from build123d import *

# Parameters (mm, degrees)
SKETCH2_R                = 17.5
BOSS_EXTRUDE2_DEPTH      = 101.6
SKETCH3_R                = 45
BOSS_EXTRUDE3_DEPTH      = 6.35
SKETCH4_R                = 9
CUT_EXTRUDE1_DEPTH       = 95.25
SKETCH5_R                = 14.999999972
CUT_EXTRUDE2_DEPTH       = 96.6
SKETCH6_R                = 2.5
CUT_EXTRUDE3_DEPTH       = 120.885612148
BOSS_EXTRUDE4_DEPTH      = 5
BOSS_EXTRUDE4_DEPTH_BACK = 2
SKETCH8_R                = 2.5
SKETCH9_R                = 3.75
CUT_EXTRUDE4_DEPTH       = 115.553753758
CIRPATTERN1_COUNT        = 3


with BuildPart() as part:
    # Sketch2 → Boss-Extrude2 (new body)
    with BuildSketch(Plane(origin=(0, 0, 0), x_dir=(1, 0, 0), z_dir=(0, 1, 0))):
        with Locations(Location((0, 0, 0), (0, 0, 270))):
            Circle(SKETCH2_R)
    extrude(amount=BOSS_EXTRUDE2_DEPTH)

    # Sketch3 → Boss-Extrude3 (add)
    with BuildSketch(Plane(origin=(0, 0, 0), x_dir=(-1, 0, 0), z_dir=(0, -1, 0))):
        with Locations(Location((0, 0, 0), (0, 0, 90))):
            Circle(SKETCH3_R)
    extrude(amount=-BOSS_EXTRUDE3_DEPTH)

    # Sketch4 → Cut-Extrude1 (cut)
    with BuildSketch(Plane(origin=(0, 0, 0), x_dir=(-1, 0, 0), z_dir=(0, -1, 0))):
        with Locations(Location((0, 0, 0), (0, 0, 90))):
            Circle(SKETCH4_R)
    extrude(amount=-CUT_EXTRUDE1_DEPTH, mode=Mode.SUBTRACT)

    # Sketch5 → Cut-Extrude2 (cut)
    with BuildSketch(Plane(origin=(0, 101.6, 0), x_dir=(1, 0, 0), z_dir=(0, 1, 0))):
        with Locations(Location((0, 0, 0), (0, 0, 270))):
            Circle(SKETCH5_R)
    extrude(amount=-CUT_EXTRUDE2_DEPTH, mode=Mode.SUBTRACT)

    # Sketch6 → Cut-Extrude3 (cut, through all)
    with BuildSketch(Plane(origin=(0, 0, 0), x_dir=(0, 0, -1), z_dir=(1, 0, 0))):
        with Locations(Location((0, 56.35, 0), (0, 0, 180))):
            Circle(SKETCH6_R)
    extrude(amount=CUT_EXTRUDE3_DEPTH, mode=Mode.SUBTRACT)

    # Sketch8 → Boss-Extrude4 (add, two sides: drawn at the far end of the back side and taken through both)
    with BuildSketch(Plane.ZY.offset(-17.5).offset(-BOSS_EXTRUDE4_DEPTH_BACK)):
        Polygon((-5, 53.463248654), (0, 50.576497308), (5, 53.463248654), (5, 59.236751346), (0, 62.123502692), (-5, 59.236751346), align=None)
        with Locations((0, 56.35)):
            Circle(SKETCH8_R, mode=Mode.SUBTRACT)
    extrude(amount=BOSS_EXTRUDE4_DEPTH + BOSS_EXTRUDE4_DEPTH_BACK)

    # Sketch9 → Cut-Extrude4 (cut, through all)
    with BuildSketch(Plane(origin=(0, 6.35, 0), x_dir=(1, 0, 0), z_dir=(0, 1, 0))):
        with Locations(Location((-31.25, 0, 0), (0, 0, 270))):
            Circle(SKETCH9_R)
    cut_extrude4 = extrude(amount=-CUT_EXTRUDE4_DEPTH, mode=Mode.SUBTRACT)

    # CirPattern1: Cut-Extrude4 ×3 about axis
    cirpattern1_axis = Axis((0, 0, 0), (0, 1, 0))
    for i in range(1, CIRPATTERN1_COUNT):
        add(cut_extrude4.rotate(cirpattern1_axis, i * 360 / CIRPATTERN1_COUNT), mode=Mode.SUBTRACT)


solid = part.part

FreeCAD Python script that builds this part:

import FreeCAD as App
import Part
import Sketcher

V = App.Vector
Q = App.Units.Quantity


def add_polygon(sketch, points):
    """Adds a closed chain of lines whose ends are joined by coincident constraints."""
    first, n = sketch.GeometryCount, len(points)
    for a, b in zip(points, points[1:] + points[:1]):
        sketch.addGeometry(Part.LineSegment(App.Vector(*a, 0), App.Vector(*b, 0)), False)
    for i in range(n):
        sketch.addConstraint(Sketcher.Constraint("Coincident", first + i, 2, first + (i + 1) % n, 1))

doc = App.newDocument("Part")
body = doc.addObject("PartDesign::Body", "Body")

sketch1 = body.newObject("Sketcher::SketchObject", "Sketch")
sketch1.AttachmentSupport = (doc.getObject("XZ_Plane"), [""])
sketch1.MapMode = "FlatFace"
sketch1.addGeometry(Part.Circle(V(0, 0, 0), V(0, 0, 1), 17.5), False)
sketch1.addConstraint(Sketcher.Constraint("Coincident", 0, 3, -1, 1))
sketch1.addConstraint(Sketcher.Constraint("Diameter", 0, Q("35 mm")))
pad1 = body.newObject("PartDesign::Pad", "Pad")
pad1.Profile = sketch1
pad1.Length = 101.6
pad1.Reversed = True

sketch2 = body.newObject("Sketcher::SketchObject", "Sketch001")
sketch2.AttachmentSupport = (doc.getObject("XZ_Plane"), [""])
sketch2.MapMode = "FlatFace"
sketch2.addGeometry(Part.Circle(V(0, 0, 0), V(0, 0, 1), 45), False)
sketch2.addConstraint(Sketcher.Constraint("Coincident", 0, 3, -1, 1))
sketch2.addConstraint(Sketcher.Constraint("Diameter", 0, Q("90 mm")))
pad2 = body.newObject("PartDesign::Pad", "Pad001")
pad2.Profile = sketch2
pad2.Length = 6.35
pad2.Reversed = True

sketch3 = body.newObject("Sketcher::SketchObject", "Sketch002")
sketch3.AttachmentSupport = (doc.getObject("XZ_Plane"), [""])
sketch3.MapMode = "FlatFace"
sketch3.addGeometry(Part.Circle(V(0, 0, 0), V(0, 0, 1), 9), False)
sketch3.addConstraint(Sketcher.Constraint("Coincident", 0, 3, -1, 1))
sketch3.addConstraint(Sketcher.Constraint("Diameter", 0, Q("18 mm")))
pocket1 = body.newObject("PartDesign::Pocket", "Pocket")
pocket1.Profile = sketch3
pocket1.Length = 95.25

sketch4 = body.newObject("Sketcher::SketchObject", "Sketch003")
sketch4.AttachmentSupport = (doc.getObject("XZ_Plane"), [""])
sketch4.MapMode = "FlatFace"
sketch4.AttachmentOffset = App.Placement(V(0, 0, -101.6), App.Rotation())
sketch4.addGeometry(Part.Circle(V(0, 0, 0), V(0, 0, 1), 15), False)
sketch4.addConstraint(Sketcher.Constraint("Coincident", 0, 3, -1, 1))
sketch4.addConstraint(Sketcher.Constraint("Diameter", 0, Q("30 mm")))
pocket2 = body.newObject("PartDesign::Pocket", "Pocket001")
pocket2.Profile = sketch4
pocket2.Length = 96.6
pocket2.Reversed = True

sketch5 = body.newObject("Sketcher::SketchObject", "Sketch004")
sketch5.AttachmentSupport = (doc.getObject("YZ_Plane"), [""])
sketch5.MapMode = "FlatFace"
sketch5.addGeometry(Part.Circle(V(56.35, 0, 0), V(0, 0, 1), 2.5), False)
sketch5.addConstraint(Sketcher.Constraint("PointOnObject", 0, 3, -1))
sketch5.addConstraint(Sketcher.Constraint("Diameter", 0, Q("5 mm")))
sketch5.addConstraint(Sketcher.Constraint("DistanceX", -1, 1, 0, 3, Q("56.35 mm")))
pocket3 = body.newObject("PartDesign::Pocket", "Pocket002")
pocket3.Profile = sketch5
pocket3.Type = "ThroughAll"
pocket3.Reversed = True

sketch6 = body.newObject("Sketcher::SketchObject", "Sketch005")
sketch6.AttachmentSupport = (doc.getObject("YZ_Plane"), [""])
sketch6.MapMode = "FlatFace"
sketch6.AttachmentOffset = App.Placement(V(0, 0, 17.5), App.Rotation())
add_polygon(sketch6, [(53.463249, -5), (50.576497, 0), (53.463249, 5), (59.236751, 5), (62.123503, 0), (59.236751, -5)])
sketch6.addGeometry(Part.Circle(V(56.35, 0, 0), V(0, 0, 1), 2.5), False)
sketch6.addConstraint(Sketcher.Constraint("Horizontal", 2))
sketch6.addConstraint(Sketcher.Constraint("Horizontal", 5))
sketch6.addConstraint(Sketcher.Constraint("Symmetric", 2, 2, 4, 2, -1))
sketch6.addConstraint(Sketcher.Constraint("PointOnObject", 6, 3, -1))
sketch6.addConstraint(Sketcher.Constraint("PointOnObject", 0, 2, -1))
sketch6.addConstraint(Sketcher.Constraint("PointOnObject", 3, 2, -1))
sketch6.addConstraint(Sketcher.Constraint("Parallel", 0, 3))
sketch6.addConstraint(Sketcher.Constraint("Parallel", 1, 4))
sketch6.addConstraint(Sketcher.Constraint("Diameter", 6, Q("5 mm")))
sketch6.addConstraint(Sketcher.Constraint("Angle", 0, Q("120 deg")))
sketch6.addConstraint(Sketcher.Constraint("DistanceY", -1, 1, 1, 2, Q("5 mm")))
sketch6.addConstraint(Sketcher.Constraint("DistanceX", -1, 1, 6, 3, Q("56.35 mm")))
sketch6.addConstraint(Sketcher.Constraint("DistanceX", 2, 1, 2, 2, Q("5.773503 mm")))
sketch6.addConstraint(Sketcher.Constraint("DistanceX", -1, 1, 1, 2, Q("53.463249 mm")))
pad3 = body.newObject("PartDesign::Pad", "Pad002")
pad3.Profile = sketch6
pad3.Type = "TwoLengths"
pad3.Length = 5
pad3.Length2 = 2
pad3.Reversed = True

sketch7 = body.newObject("Sketcher::SketchObject", "Sketch006")
sketch7.AttachmentSupport = (doc.getObject("XZ_Plane"), [""])
sketch7.MapMode = "FlatFace"
sketch7.AttachmentOffset = App.Placement(V(0, 0, -6.35), App.Rotation())
sketch7.addGeometry(Part.Circle(V(-31.25, 0, 0), V(0, 0, 1), 3.75), False)
sketch7.addConstraint(Sketcher.Constraint("PointOnObject", 0, 3, -1))
sketch7.addConstraint(Sketcher.Constraint("Diameter", 0, Q("7.5 mm")))
sketch7.addConstraint(Sketcher.Constraint("DistanceX", 0, 3, -1, 1, Q("31.25 mm")))
pocket4 = body.newObject("PartDesign::Pocket", "Pocket003")
pocket4.Profile = sketch7
pocket4.Type = "ThroughAll"
pocket4.Reversed = True
doc.recompute()

polarpattern = body.newObject("PartDesign::PolarPattern", "PolarPattern")
polarpattern.Originals = [pocket4]
polarpattern.Axis = (doc.getObject("Y_Axis"), [""])
polarpattern.Angle = 360
polarpattern.Occurrences = 3
body.Tip = polarpattern

doc.recompute()
